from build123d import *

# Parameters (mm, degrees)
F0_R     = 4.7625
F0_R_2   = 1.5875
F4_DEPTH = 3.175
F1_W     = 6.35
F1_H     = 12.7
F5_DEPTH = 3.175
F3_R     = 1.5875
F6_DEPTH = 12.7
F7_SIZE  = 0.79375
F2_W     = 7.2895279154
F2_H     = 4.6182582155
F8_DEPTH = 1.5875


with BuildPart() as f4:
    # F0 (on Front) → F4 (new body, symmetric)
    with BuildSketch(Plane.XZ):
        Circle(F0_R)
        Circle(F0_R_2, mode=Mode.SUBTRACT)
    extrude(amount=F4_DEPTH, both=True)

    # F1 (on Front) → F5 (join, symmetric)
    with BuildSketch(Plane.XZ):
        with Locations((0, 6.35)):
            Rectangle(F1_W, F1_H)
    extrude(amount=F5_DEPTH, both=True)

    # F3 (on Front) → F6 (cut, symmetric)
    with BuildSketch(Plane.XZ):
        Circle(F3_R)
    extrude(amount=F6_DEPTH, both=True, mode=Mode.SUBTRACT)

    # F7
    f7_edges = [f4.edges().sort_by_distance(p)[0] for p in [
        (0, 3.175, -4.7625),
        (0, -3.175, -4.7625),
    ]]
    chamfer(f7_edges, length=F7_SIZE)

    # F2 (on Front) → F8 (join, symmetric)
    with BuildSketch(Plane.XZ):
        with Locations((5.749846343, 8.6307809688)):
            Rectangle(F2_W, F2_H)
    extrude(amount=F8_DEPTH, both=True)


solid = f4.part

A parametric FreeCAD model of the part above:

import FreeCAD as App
import Part
import Sketcher
Q = App.Units.Quantity


def edges_at(feature, points):
    """Names of the edges that pass closest to the given points."""
    edges = feature.Shape.Edges
    near = lambda p: min(range(len(edges)), key=lambda i: edges[i].distToShape(Part.Vertex(*p))[0])
    return sorted({f"Edge{near(p) + 1}" for p in points})


def add_polygon(sketch, points):
    """Adds a closed chain of lines whose ends are joined by coincident constraints."""
    first, n = sketch.GeometryCount, len(points)
    for a, b in zip(points, points[1:] + points[:1]):
        sketch.addGeometry(Part.LineSegment(App.Vector(*a, 0), App.Vector(*b, 0)), False)
    for i in range(n):
        sketch.addConstraint(Sketcher.Constraint("Coincident", first + i, 2, first + (i + 1) % n, 1))

doc = App.newDocument("Part")
params = doc.addObject("Spreadsheet::Sheet", "Params")
for row, (alias, value) in enumerate([
    ("sketch1_diameter", "0.375 in"),
    ("sketch1_diameter2", "0.125 in"),
    ("pad1_length", "0.25 in"),
    ("sketch2_height", "0.5 in"),
    ("sketch2_width", "0.25 in"),
    ("pad2_length", "0.25 in"),
    ("sketch3_diameter", "0.125 in"),
    ("pocket1_length", "1 in"),
    ("chamfer_size", "0.03125 in"),
    ("pad3_length", "0.125 in"),
], start=1):
    params.set(f"A{row}", alias)
    params.set(f"B{row}", "=" + value)
    params.setAlias(f"B{row}", alias)

body = doc.addObject("PartDesign::Body", "Body")

sketch1 = doc.addObject("Sketcher::SketchObject", "Sketch")
body.addObject(sketch1)
sketch1.AttachmentSupport = (doc.XZ_Plane, [""])
sketch1.MapMode = "FlatFace"
sketch1.addGeometry(Part.Circle(App.Vector(0, 0, 0), App.Vector(0, 0, 1), 4.8), False)
sketch1.addGeometry(Part.Circle(App.Vector(0, 0, 0), App.Vector(0, 0, 1), 1.6), False)
sketch1.addConstraint(Sketcher.Constraint("Coincident", 0, 3, -1, 1))
sketch1.addConstraint(Sketcher.Constraint("Coincident", 1, 3, -1, 1))
sketch1.addConstraint(Sketcher.Constraint("Diameter", 0, Q("0.375 in")))
sketch1.addConstraint(Sketcher.Constraint("Diameter", 1, Q("0.125 in")))
sketch1.setExpression("Constraints[2]", "Params.sketch1_diameter")
sketch1.setExpression("Constraints[3]", "Params.sketch1_diameter2")
pad1 = doc.addObject("PartDesign::Pad", "Pad")
body.addObject(pad1)
pad1.Profile = sketch1
pad1.setExpression("Length", "Params.pad1_length")
pad1.Midplane = True

sketch2 = doc.addObject("Sketcher::SketchObject", "Sketch001")
body.addObject(sketch2)
sketch2.AttachmentSupport = (doc.XZ_Plane, [""])
sketch2.MapMode = "FlatFace"
add_polygon(sketch2, [(-3, 13), (-3, 0), (3, 0), (3, 13)])
sketch2.addConstraint(Sketcher.Constraint("Vertical", 0))
sketch2.addConstraint(Sketcher.Constraint("Horizontal", 1))
sketch2.addConstraint(Sketcher.Constraint("Vertical", 2))
sketch2.addConstraint(Sketcher.Constraint("Horizontal", 3))
sketch2.addConstraint(Sketcher.Constraint("Symmetric", 0, 2, 1, 2, -1, 1))
sketch2.addConstraint(Sketcher.Constraint("DistanceY", 0, 2, 0, 1, Q("0.5 in")))
sketch2.addConstraint(Sketcher.Constraint("DistanceX", 1, 1, 1, 2, Q("0.25 in")))
sketch2.setExpression("Constraints[9]", "Params.sketch2_height")
sketch2.setExpression("Constraints[10]", "Params.sketch2_width")
pad2 = doc.addObject("PartDesign::Pad", "Pad001")
body.addObject(pad2)
pad2.Profile = sketch2
pad2.setExpression("Length", "Params.pad2_length")
pad2.Midplane = True

sketch3 = doc.addObject("Sketcher::SketchObject", "Sketch002")
body.addObject(sketch3)
sketch3.AttachmentSupport = (doc.XZ_Plane, [""])
sketch3.MapMode = "FlatFace"
sketch3.addGeometry(Part.Circle(App.Vector(0, 0, 0), App.Vector(0, 0, 1), 1.6), False)
sketch3.addConstraint(Sketcher.Constraint("Coincident", 0, 3, -1, 1))
sketch3.addConstraint(Sketcher.Constraint("Diameter", 0, Q("0.125 in")))
sketch3.setExpression("Constraints[1]", "Params.sketch3_diameter")
pocket1 = doc.addObject("PartDesign::Pocket", "Pocket")
body.addObject(pocket1)
pocket1.Profile = sketch3
pocket1.setExpression("Length", "Params.pocket1_length")
pocket1.Midplane = True
doc.recompute()

chamfer = doc.addObject("PartDesign::Chamfer", "Chamfer")
body.addObject(chamfer)
chamfer.Base = (pocket1, edges_at(pocket1, [(0, 3.175, -4.763), (0, -3.175, -4.763)]))
chamfer.setExpression("Size", "Params.chamfer_size")

sketch4 = doc.addObject("Sketcher::SketchObject", "Sketch003")
body.addObject(sketch4)
sketch4.AttachmentSupport = (doc.XZ_Plane, [""])
sketch4.MapMode = "FlatFace"
add_polygon(sketch4, [(2.1, 10.9), (2.1, 6.3), (9.4, 6.3), (9.4, 10.9)])
sketch4.addConstraint(Sketcher.Constraint("Vertical", 0))
sketch4.addConstraint(Sketcher.Constraint("Horizontal", 1))
sketch4.addConstraint(Sketcher.Constraint("Vertical", 2))
sketch4.addConstraint(Sketcher.Constraint("Horizontal", 3))
sketch4.addConstraint(Sketcher.Constraint("DistanceY", 0, 2, 0, 1, Q("4.618258 mm")))
sketch4.addConstraint(Sketcher.Constraint("DistanceX", 1, 1, 1, 2, Q("7.289528 mm")))
sketch4.addConstraint(Sketcher.Constraint("DistanceY", -1, 1, 0, 2, Q("6.321652 mm")))
sketch4.addConstraint(Sketcher.Constraint("DistanceX", -1, 1, 1, 2, Q("9.39461 mm")))
pad3 = doc.addObject("PartDesign::Pad", "Pad002")
body.addObject(pad3)
pad3.Profile = sketch4
pad3.setExpression("Length", "Params.pad3_length")
pad3.Midplane = True

doc.recompute()
